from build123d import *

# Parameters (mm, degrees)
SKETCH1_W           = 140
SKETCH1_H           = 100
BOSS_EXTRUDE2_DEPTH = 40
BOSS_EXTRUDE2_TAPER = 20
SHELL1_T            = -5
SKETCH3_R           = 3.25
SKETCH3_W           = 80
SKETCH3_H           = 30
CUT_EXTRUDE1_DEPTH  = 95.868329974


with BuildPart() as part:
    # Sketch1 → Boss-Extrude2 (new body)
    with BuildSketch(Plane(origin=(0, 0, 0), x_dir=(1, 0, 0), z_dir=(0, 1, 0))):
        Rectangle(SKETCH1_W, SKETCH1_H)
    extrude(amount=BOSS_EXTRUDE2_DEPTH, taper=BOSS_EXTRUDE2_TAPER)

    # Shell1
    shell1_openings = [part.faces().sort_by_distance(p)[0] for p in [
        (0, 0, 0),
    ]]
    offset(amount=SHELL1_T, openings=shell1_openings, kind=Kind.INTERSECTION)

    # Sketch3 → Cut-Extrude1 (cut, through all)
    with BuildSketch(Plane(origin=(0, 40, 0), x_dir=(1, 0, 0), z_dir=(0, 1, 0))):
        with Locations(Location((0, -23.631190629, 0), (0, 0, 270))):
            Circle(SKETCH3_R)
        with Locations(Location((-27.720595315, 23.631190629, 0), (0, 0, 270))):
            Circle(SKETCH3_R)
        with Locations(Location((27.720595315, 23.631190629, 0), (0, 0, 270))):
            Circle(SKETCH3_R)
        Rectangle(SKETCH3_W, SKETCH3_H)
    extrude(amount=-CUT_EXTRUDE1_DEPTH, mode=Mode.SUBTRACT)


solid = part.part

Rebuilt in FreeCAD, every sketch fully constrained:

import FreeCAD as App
import Part
import Sketcher


def faces_at(feature, points):
    """Names of the faces that lie closest to the given points."""
    faces = feature.Shape.Faces
    near = lambda p: min(range(len(faces)), key=lambda i: faces[i].distToShape(Part.Vertex(*p))[0])
    return sorted({f"Face{near(p) + 1}" for p in points})

doc = App.newDocument("Part")
body = doc.addObject("PartDesign::Body", "Body")

# Sketch on XZ plane
sketch1 = body.newObject("Sketcher::SketchObject", "Sketch")
sketch1.AttachmentSupport = (doc.getObject("XZ_Plane"), [""])
sketch1.MapMode = "FlatFace"
sketch1.addGeometry([
    Part.LineSegment(App.Vector(-70, -50, 0), App.Vector(-70, 50, 0)),
    Part.LineSegment(App.Vector(-70, 50, 0), App.Vector(70, 50, 0)),
    Part.LineSegment(App.Vector(70, 50, 0), App.Vector(70, -50, 0)),
    Part.LineSegment(App.Vector(70, -50, 0), App.Vector(-70, -50, 0)),
], False)
sketch1.addConstraint([
    Sketcher.Constraint("Coincident", 0, 2, 1, 1),
    Sketcher.Constraint("Coincident", 1, 2, 2, 1),
    Sketcher.Constraint("Coincident", 2, 2, 3, 1),
    Sketcher.Constraint("Coincident", 3, 2, 0, 1),
    Sketcher.Constraint("Vertical", 0),
    Sketcher.Constraint("Horizontal", 1),
    Sketcher.Constraint("Vertical", 2),
    Sketcher.Constraint("Horizontal", 3),
    Sketcher.Constraint("Symmetric", 0, 2, 2, 2, -1, 1),
    Sketcher.Constraint("DistanceX", 1, 1, 1, 2, 140.0),
    Sketcher.Constraint("DistanceY", 0, 1, 0, 2, 100.0),
])
pad1 = body.newObject("PartDesign::Pad", "Pad")
pad1.Profile = sketch1
pad1.Length = 40
pad1.Reversed = True
pad1.TaperAngle = -20
doc.recompute()

thickness = body.newObject("PartDesign::Thickness", "Thickness")
thickness.Base = (pad1, faces_at(pad1, [(0, 0, 0)]))
thickness.Value = 5
thickness.Reversed = True
thickness.Join = "Intersection"

# Sketch on XZ plane
sketch2 = body.newObject("Sketcher::SketchObject", "Sketch001")
sketch2.AttachmentSupport = (doc.getObject("XZ_Plane"), [""])
sketch2.MapMode = "FlatFace"
sketch2.AttachmentOffset = App.Placement(App.Vector(0, 0, -40), App.Rotation())
sketch2.addGeometry([
    Part.Circle(App.Vector(0, 23.631191, 0), App.Vector(0, 0, 1), 3.25),  # 0
    Part.Circle(App.Vector(-27.720595, -23.631191, 0), App.Vector(0, 0, 1), 3.25),  # 1
    Part.Circle(App.Vector(27.720595, -23.631191, 0), App.Vector(0, 0, 1), 3.25),  # 2
    Part.LineSegment(App.Vector(-40, -15, 0), App.Vector(-40, 15, 0)),  # 3
    Part.LineSegment(App.Vector(-40, 15, 0), App.Vector(40, 15, 0)),  # 4
    Part.LineSegment(App.Vector(40, 15, 0), App.Vector(40, -15, 0)),  # 5
    Part.LineSegment(App.Vector(40, -15, 0), App.Vector(-40, -15, 0)),  # 6
], False)
sketch2.addConstraint([
    Sketcher.Constraint("Coincident", 3, 2, 4, 1),
    Sketcher.Constraint("Coincident", 4, 2, 5, 1),
    Sketcher.Constraint("Coincident", 5, 2, 6, 1),
    Sketcher.Constraint("Coincident", 6, 2, 3, 1),
    Sketcher.Constraint("Vertical", 3),
    Sketcher.Constraint("Horizontal", 4),
    Sketcher.Constraint("Vertical", 5),
    Sketcher.Constraint("Horizontal", 6),
    Sketcher.Constraint("Equal", 0, 1),
    Sketcher.Constraint("Equal", 1, 2),
    Sketcher.Constraint("Symmetric", 3, 2, 5, 2, -1, 1),
    Sketcher.Constraint("Symmetric", 1, 3, 2, 3, -2),
    Sketcher.Constraint("PointOnObject", 0, 3, -2),
    Sketcher.Constraint("Diameter", 0, 6.5),
    Sketcher.Constraint("DistanceX", 4, 1, 4, 2, 80.0),
    Sketcher.Constraint("DistanceY", 3, 1, 3, 2, 30.0),
    Sketcher.Constraint("DistanceY", -1, 1, 0, 3, 23.631191),
    Sketcher.Constraint("DistanceY", 1, 3, -1, 1, 23.631191),
    Sketcher.Constraint("DistanceX", 1, 3, 2, 3, 55.441191),
])
pocket1 = body.newObject("PartDesign::Pocket", "Pocket")
pocket1.Profile = sketch2
pocket1.Type = "ThroughAll"
pocket1.Reversed = True

doc.recompute()
